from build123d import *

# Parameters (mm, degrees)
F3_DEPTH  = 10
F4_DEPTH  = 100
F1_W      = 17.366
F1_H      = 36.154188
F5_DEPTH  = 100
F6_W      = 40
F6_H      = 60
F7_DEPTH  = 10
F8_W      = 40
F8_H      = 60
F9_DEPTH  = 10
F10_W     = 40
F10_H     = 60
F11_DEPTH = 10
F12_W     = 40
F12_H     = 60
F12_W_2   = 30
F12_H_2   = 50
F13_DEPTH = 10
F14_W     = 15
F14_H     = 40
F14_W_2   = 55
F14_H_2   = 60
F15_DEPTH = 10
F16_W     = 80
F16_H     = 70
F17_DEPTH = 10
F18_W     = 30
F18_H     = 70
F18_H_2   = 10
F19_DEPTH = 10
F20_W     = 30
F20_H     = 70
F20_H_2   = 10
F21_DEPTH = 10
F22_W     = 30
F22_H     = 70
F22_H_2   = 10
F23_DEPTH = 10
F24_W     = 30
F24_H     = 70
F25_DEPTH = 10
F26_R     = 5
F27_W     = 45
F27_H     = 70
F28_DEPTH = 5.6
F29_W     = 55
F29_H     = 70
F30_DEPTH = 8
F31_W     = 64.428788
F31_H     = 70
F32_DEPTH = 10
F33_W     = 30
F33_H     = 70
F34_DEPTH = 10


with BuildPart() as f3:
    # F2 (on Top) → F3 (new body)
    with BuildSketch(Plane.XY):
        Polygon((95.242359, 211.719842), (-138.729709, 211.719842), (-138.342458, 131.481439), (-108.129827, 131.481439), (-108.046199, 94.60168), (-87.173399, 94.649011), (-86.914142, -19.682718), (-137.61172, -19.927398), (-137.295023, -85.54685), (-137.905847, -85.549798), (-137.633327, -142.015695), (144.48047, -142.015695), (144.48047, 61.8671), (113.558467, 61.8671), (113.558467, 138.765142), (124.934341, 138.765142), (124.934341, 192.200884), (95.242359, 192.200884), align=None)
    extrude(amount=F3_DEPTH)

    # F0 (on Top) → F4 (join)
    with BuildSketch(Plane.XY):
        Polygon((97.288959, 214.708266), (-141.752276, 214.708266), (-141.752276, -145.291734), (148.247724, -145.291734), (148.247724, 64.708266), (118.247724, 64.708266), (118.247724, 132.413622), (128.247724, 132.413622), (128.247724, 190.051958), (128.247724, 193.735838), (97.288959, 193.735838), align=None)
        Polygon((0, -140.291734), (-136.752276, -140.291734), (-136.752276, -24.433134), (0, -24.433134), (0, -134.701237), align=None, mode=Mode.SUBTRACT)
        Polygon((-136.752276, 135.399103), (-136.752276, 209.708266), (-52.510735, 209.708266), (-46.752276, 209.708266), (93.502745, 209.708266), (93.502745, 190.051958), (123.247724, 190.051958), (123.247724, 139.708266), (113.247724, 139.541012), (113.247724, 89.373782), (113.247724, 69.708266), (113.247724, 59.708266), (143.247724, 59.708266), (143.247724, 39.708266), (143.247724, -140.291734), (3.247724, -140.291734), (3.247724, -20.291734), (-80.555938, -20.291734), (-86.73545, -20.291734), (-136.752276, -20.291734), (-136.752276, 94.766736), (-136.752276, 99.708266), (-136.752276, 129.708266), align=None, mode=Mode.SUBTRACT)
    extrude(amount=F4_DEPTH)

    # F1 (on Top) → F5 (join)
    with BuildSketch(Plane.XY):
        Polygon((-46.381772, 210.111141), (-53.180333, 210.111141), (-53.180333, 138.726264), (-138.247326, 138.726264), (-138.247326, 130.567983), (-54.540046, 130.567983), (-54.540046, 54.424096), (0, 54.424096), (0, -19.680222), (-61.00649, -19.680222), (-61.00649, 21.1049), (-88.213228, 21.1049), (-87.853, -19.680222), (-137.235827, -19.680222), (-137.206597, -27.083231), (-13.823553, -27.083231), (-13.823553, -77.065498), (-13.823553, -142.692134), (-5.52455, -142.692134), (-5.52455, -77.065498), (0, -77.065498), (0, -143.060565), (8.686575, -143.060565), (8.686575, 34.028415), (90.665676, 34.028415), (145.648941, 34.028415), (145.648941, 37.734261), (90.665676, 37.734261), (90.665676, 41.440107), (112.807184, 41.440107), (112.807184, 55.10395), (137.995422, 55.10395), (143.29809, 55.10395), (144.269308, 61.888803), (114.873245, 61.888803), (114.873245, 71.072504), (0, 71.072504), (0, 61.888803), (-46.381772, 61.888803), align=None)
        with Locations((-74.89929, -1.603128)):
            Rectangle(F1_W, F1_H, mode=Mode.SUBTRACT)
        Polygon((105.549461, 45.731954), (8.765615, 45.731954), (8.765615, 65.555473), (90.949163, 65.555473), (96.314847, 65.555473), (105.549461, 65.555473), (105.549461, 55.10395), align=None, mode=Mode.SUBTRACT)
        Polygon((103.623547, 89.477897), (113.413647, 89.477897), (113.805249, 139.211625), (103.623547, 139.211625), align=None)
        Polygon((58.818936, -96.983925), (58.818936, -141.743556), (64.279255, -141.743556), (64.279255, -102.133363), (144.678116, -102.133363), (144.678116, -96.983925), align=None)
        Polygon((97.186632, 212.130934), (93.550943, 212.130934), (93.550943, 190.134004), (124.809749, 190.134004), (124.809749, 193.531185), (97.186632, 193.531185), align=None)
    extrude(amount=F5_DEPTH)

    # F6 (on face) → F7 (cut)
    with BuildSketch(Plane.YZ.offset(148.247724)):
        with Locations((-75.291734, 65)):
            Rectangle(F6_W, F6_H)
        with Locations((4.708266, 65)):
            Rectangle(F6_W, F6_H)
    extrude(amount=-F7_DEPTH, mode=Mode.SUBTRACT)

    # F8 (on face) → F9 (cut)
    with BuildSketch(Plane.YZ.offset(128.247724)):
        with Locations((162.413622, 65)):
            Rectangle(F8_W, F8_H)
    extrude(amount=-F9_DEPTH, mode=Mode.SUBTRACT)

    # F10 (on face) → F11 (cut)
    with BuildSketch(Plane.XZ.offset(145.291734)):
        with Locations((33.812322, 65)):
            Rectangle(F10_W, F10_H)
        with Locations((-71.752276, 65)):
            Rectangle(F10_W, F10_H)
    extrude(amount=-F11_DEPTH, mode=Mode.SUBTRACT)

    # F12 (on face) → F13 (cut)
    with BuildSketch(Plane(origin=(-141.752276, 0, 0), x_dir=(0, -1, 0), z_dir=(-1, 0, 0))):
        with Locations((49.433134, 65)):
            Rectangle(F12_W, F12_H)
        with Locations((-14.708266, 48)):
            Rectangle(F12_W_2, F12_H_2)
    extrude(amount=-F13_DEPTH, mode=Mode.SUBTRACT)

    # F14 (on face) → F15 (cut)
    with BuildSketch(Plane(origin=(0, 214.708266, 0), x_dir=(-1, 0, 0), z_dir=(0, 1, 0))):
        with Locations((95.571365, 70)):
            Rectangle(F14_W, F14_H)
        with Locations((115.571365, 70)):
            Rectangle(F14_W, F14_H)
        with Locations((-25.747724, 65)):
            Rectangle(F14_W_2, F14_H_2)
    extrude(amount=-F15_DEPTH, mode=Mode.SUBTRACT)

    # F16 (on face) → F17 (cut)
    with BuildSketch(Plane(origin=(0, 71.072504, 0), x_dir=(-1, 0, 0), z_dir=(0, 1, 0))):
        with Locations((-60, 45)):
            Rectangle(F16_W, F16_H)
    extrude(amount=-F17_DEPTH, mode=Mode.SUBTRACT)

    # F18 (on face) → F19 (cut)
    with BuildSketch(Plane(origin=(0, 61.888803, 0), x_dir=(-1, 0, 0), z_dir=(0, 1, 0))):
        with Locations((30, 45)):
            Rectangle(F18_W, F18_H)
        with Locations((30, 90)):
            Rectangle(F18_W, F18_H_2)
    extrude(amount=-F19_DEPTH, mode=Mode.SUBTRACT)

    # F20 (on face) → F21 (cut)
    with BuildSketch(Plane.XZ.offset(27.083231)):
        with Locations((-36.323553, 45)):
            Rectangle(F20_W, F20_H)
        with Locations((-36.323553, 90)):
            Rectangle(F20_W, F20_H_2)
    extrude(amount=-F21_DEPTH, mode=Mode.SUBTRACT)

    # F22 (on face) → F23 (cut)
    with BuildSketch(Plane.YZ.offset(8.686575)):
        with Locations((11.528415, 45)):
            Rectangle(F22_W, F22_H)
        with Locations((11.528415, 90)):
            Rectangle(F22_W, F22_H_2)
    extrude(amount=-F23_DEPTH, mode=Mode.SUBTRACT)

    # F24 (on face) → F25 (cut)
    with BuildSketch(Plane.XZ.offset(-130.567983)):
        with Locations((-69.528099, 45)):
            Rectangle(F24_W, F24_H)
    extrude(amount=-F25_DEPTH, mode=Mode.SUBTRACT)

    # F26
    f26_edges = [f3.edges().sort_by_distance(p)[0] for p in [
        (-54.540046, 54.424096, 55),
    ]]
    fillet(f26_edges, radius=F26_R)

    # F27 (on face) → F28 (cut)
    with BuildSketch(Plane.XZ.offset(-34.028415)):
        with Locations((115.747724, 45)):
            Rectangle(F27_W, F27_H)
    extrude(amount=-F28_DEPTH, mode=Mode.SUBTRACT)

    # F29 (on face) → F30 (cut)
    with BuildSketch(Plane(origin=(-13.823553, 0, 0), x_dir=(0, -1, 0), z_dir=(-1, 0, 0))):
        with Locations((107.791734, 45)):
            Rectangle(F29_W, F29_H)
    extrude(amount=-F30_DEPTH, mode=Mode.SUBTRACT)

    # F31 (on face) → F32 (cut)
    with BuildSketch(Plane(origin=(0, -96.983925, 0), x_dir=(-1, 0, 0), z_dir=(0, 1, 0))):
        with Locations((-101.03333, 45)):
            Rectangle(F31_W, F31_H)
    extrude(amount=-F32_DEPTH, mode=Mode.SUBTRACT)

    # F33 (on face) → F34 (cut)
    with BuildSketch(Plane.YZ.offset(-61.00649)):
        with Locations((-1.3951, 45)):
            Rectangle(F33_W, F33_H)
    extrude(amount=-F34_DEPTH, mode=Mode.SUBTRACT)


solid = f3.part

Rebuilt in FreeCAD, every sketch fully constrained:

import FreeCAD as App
import Part
import Sketcher
Q = App.Units.Quantity


def edges_at(feature, points):
    """Names of the edges that pass closest to the given points."""
    edges = feature.Shape.Edges
    near = lambda p: min(range(len(edges)), key=lambda i: edges[i].distToShape(Part.Vertex(*p))[0])
    return sorted({f"Edge{near(p) + 1}" for p in points})


def add_polygon(sketch, points):
    """Adds a closed chain of lines whose ends are joined by coincident constraints."""
    first, n = sketch.GeometryCount, len(points)
    for a, b in zip(points, points[1:] + points[:1]):
        sketch.addGeometry(Part.LineSegment(App.Vector(*a, 0), App.Vector(*b, 0)), False)
    for i in range(n):
        sketch.addConstraint(Sketcher.Constraint("Coincident", first + i, 2, first + (i + 1) % n, 1))

doc = App.newDocument("Part")
body = doc.addObject("PartDesign::Body", "Body")

sketch1 = body.newObject("Sketcher::SketchObject", "Sketch")
sketch1.AttachmentSupport = (doc.getObject("XY_Plane"), [""])
sketch1.MapMode = "FlatFace"
add_polygon(sketch1, [(95.2, 211.7), (-138.7, 211.7), (-138.3, 131.5), (-108.1, 131.5), (-108, 94.6), (-87.2, 94.6), (-86.9, -19.7), (-137.6, -19.9), (-137.3, -85.5), (-137.9, -85.5), (-137.6, -142), (144.5, -142), (144.5, 61.9), (113.6, 61.9), (113.6, 138.8), (124.9, 138.8), (124.9, 192.2), (95.2, 192.2)])
sketch1.addConstraint([
    Sketcher.Constraint("Horizontal", 0),
    Sketcher.Constraint("Horizontal", 2),
    Sketcher.Constraint("Horizontal", 10),
    Sketcher.Constraint("Vertical", 11),
    Sketcher.Constraint("Horizontal", 12),
    Sketcher.Constraint("Vertical", 13),
    Sketcher.Constraint("Horizontal", 14),
    Sketcher.Constraint("Vertical", 15),
    Sketcher.Constraint("Horizontal", 16),
    Sketcher.Constraint("Vertical", 17),
    Sketcher.Constraint("Perpendicular", 3, 4),
    Sketcher.Constraint("Perpendicular", 4, 5),
    Sketcher.Constraint("Perpendicular", 1, 6),
    Sketcher.Constraint("Perpendicular", 6, 7),
    Sketcher.Constraint("Perpendicular", 7, 8),
    Sketcher.Constraint("Perpendicular", 8, 9),
    Sketcher.Constraint("DistanceX", 0, 2, 0, 1, Q("233.972068 mm")),
    Sketcher.Constraint("DistanceX", 2, 1, 2, 2, Q("30.212631 mm")),
    Sketcher.Constraint("DistanceX", 3, 2, -1, 1, Q("108.046199 mm")),
    Sketcher.Constraint("DistanceX", 4, 2, -1, 1, Q("87.173399 mm")),
    Sketcher.Constraint("DistanceY", 6, 2, -1, 1, Q("19.927398 mm")),
    Sketcher.Constraint("DistanceY", -1, 1, 11, 2, Q("61.8671 mm")),
    Sketcher.Constraint("DistanceY", 5, 2, 3, 2, Q("114.284398 mm")),
    Sketcher.Constraint("DistanceY", 8, 2, 6, 2, Q("65.6224 mm")),
    Sketcher.Constraint("DistanceY", 13, 2, 17, 2, Q("72.9547 mm")),
    Sketcher.Constraint("Distance", 6, Q("50.698168 mm")),
    Sketcher.Constraint("Distance", 8, Q("0.610831 mm")),
    Sketcher.Constraint("DistanceX", 10, 1, 10, 2, Q("282.113797 mm")),
    Sketcher.Constraint("DistanceX", 12, 2, 12, 1, Q("30.922003 mm")),
    Sketcher.Constraint("DistanceX", 14, 1, 14, 2, Q("11.375874 mm")),
    Sketcher.Constraint("DistanceX", 16, 2, 16, 1, Q("29.691982 mm")),
    Sketcher.Constraint("DistanceY", 11, 1, 11, 2, Q("203.882795 mm")),
    Sketcher.Constraint("DistanceY", 13, 1, 13, 2, Q("76.898042 mm")),
    Sketcher.Constraint("DistanceY", 15, 1, 15, 2, Q("53.435742 mm")),
    Sketcher.Constraint("DistanceX", 0, 2, -1, 1, Q("138.729709 mm")),
    Sketcher.Constraint("DistanceY", -1, 1, 1, 2, Q("131.481439 mm")),
])
pad1 = body.newObject("PartDesign::Pad", "Pad")
pad1.Profile = sketch1
pad1.Length = 10

sketch2 = body.newObject("Sketcher::SketchObject", "Sketch001")
sketch2.AttachmentSupport = (doc.getObject("XY_Plane"), [""])
sketch2.MapMode = "FlatFace"
add_polygon(sketch2, [(97.288959, 214.708266), (-141.752276, 214.708266), (-141.752276, -145.291734), (148.247724, -145.291734), (148.247724, 64.708266), (118.247724, 64.708266), (118.247724, 132.413622), (128.247724, 132.413622), (128.247724, 193.735838), (97.288959, 193.735838)])
add_polygon(sketch2, [(0, -24.433134), (0, -140.291734), (-136.752276, -140.291734), (-136.752276, -24.433134)])
add_polygon(sketch2, [(-136.752276, -20.291734), (-136.752276, 209.708266), (93.502745, 209.708266), (93.502745, 190.051958), (123.247724, 190.051958), (123.247724, 139.708266), (113.247724, 139.541012), (113.247724, 59.708266), (143.247724, 59.708266), (143.247724, -140.291734), (3.247724, -140.291734), (3.247724, -20.291734)])
sketch2.addConstraint([
    Sketcher.Constraint("Horizontal", 0),
    Sketcher.Constraint("Vertical", 1),
    Sketcher.Constraint("Horizontal", 2),
    Sketcher.Constraint("Vertical", 3),
    Sketcher.Constraint("Horizontal", 4),
    Sketcher.Constraint("Vertical", 5),
    Sketcher.Constraint("Horizontal", 6),
    Sketcher.Constraint("Vertical", 7),
    Sketcher.Constraint("Horizontal", 8),
    Sketcher.Constraint("Vertical", 9),
    Sketcher.Constraint("Vertical", 10),
    Sketcher.Constraint("Horizontal", 11),
    Sketcher.Constraint("Vertical", 12),
    Sketcher.Constraint("Horizontal", 13),
    Sketcher.Constraint("Vertical", 14),
    Sketcher.Constraint("Horizontal", 15),
    Sketcher.Constraint("Vertical", 16),
    Sketcher.Constraint("Horizontal", 17),
    Sketcher.Constraint("Vertical", 18),
    Sketcher.Constraint("Vertical", 20),
    Sketcher.Constraint("Horizontal", 21),
    Sketcher.Constraint("Vertical", 22),
    Sketcher.Constraint("Horizontal", 23),
    Sketcher.Constraint("Vertical", 24),
    Sketcher.Constraint("Horizontal", 25),
    Sketcher.Constraint("PointOnObject", 10, 2, -2),
    Sketcher.Constraint("Horizontal", 11, 2, 22, 2),
    Sketcher.Constraint("Vertical", 12, 2, 14, 2),
    Sketcher.Constraint("Equal", 4, 21),
    Sketcher.Constraint("Equal", 23, 25),
    Sketcher.Constraint("DistanceX", 2, 1, 2, 2, Q("290 mm")),
    Sketcher.Constraint("DistanceX", 4, 2, 4, 1, Q("30 mm")),
    Sketcher.Constraint("DistanceX", 6, 1, 6, 2, Q("10 mm")),
    Sketcher.Constraint("DistanceX", 23, 2, 23, 1, Q("140 mm")),
    Sketcher.Constraint("DistanceY", 1, 2, 1, 1, Q("360 mm")),
    Sketcher.Constraint("DistanceY", 3, 1, 3, 2, Q("210 mm")),
    Sketcher.Constraint("DistanceY", 14, 1, 14, 2, Q("230 mm")),
    Sketcher.Constraint("DistanceY", 22, 2, 22, 1, Q("200 mm")),
    Sketcher.Constraint("DistanceY", 24, 1, 24, 2, Q("120 mm")),
    Sketcher.Constraint("DistanceY", 1, 2, 10, 2, Q("5 mm")),
    Sketcher.Constraint("DistanceX", 1, 2, 11, 2, Q("5 mm")),
    Sketcher.Constraint("DistanceX", 17, 2, 7, 2, Q("5 mm")),
    Sketcher.Constraint("DistanceY", 10, 2, 10, 1, Q("115.8586 mm")),
    Sketcher.Constraint("Distance", 19, Q("10.001399 mm")),
    Sketcher.Constraint("DistanceX", 15, 1, 15, 2, Q("230.255021 mm")),
    Sketcher.Constraint("DistanceY", 9, 1, 9, 2, Q("20.972428 mm")),
    Sketcher.Constraint("DistanceX", 0, 2, 0, 1, Q("239.041235 mm")),
    Sketcher.Constraint("DistanceX", 11, 2, 11, 1, Q("136.752276 mm")),
    Sketcher.Constraint("DistanceY", 5, 1, 5, 2, Q("67.705356 mm")),
    Sketcher.Constraint("DistanceY", 16, 2, 16, 1, Q("19.656308 mm")),
    Sketcher.Constraint("DistanceY", 18, 2, 18, 1, Q("50.343692 mm")),
    Sketcher.Constraint("DistanceY", -1, 1, 5, 2, Q("132.413622 mm")),
])
pad2 = body.newObject("PartDesign::Pad", "Pad001")
pad2.Profile = sketch2
pad2.Length = 100

sketch3 = body.newObject("Sketcher::SketchObject", "Sketch002")
sketch3.AttachmentSupport = (doc.getObject("XY_Plane"), [""])
sketch3.MapMode = "FlatFace"
add_polygon(sketch3, [(-46.4, 210.1), (-53.2, 210.1), (-53.2, 138.7), (-138.2, 138.7), (-138.2, 130.6), (-54.5, 130.6), (-54.5, 54.4), (0, 54.4), (0, -19.7), (-61, -19.7), (-61, 21.1), (-88.2, 21.1), (-87.9, -19.7), (-137.2, -19.7), (-137.2, -27.1), (-13.8, -27.1), (-13.8, -142.7), (-5.5, -142.7), (-5.5, -77.1), (0, -77.1), (0, -143.1), (8.7, -143.1), (8.7, 34), (145.6, 34), (145.6, 37.7), (90.7, 37.7), (90.7, 41.4), (112.8, 41.4), (112.8, 55.1), (143.3, 55.1), (144.3, 61.9), (114.9, 61.9), (114.9, 71.1), (0, 71.1), (0, 61.9), (-46.4, 61.9)])
add_polygon(sketch3, [(-66.2, -19.7), (-83.6, -19.7), (-83.6, 16.5), (-66.2, 16.5)])
add_polygon(sketch3, [(105.5, 65.6), (105.5, 45.7), (8.8, 45.7), (8.8, 65.6)])
add_polygon(sketch3, [(103.6, 89.5), (113.4, 89.5), (113.8, 139.2), (103.6, 139.2)])
add_polygon(sketch3, [(58.8, -97), (58.8, -141.7), (64.3, -141.7), (64.3, -102.1), (144.7, -102.1), (144.7, -97)])
add_polygon(sketch3, [(97.2, 212.1), (93.6, 212.1), (93.6, 190.1), (124.8, 190.1), (124.8, 193.5), (97.2, 193.5)])
sketch3.addConstraint([
    Sketcher.Constraint("Horizontal", 0),
    Sketcher.Constraint("Vertical", 1),
    Sketcher.Constraint("Horizontal", 2),
    Sketcher.Constraint("Vertical", 3),
    Sketcher.Constraint("Horizontal", 4),
    Sketcher.Constraint("Vertical", 5),
    Sketcher.Constraint("Horizontal", 6),
    Sketcher.Constraint("Vertical", 7),
    Sketcher.Constraint("Horizontal", 8),
    Sketcher.Constraint("Vertical", 9),
    Sketcher.Constraint("Horizontal", 10),
    Sketcher.Constraint("Horizontal", 12),
    Sketcher.Constraint("Horizontal", 14),
    Sketcher.Constraint("Vertical", 15),
    Sketcher.Constraint("Horizontal", 16),
    Sketcher.Constraint("Vertical", 17),
    Sketcher.Constraint("Horizontal", 18),
    Sketcher.Constraint("Vertical", 19),
    Sketcher.Constraint("Horizontal", 20),
    Sketcher.Constraint("Vertical", 21),
    Sketcher.Constraint("Horizontal", 22),
    Sketcher.Constraint("Vertical", 23),
    Sketcher.Constraint("Horizontal", 24),
    Sketcher.Constraint("Vertical", 25),
    Sketcher.Constraint("Horizontal", 26),
    Sketcher.Constraint("Vertical", 27),
    Sketcher.Constraint("Horizontal", 28),
    Sketcher.Constraint("Horizontal", 30),
    Sketcher.Constraint("Vertical", 31),
    Sketcher.Constraint("Horizontal", 32),
    Sketcher.Constraint("Vertical", 33),
    Sketcher.Constraint("Horizontal", 34),
    Sketcher.Constraint("Vertical", 35),
    Sketcher.Constraint("Horizontal", 36),
    Sketcher.Constraint("Vertical", 37),
    Sketcher.Constraint("Horizontal", 38),
    Sketcher.Constraint("Vertical", 39),
    Sketcher.Constraint("Vertical", 40),
    Sketcher.Constraint("Horizontal", 41),
    Sketcher.Constraint("Vertical", 42),
    Sketcher.Constraint("Horizontal", 43),
    Sketcher.Constraint("Horizontal", 44),
    Sketcher.Constraint("Horizontal", 46),
    Sketcher.Constraint("Vertical", 47),
    Sketcher.Constraint("Vertical", 48),
    Sketcher.Constraint("Horizontal", 49),
    Sketcher.Constraint("Vertical", 50),
    Sketcher.Constraint("Horizontal", 51),
    Sketcher.Constraint("Vertical", 52),
    Sketcher.Constraint("Horizontal", 53),
    Sketcher.Constraint("Horizontal", 54),
    Sketcher.Constraint("Vertical", 55),
    Sketcher.Constraint("Horizontal", 56),
    Sketcher.Constraint("Vertical", 57),
    Sketcher.Constraint("Horizontal", 58),
    Sketcher.Constraint("Vertical", 59),
    Sketcher.Constraint("PointOnObject", 6, 2, -2),
    Sketcher.Constraint("PointOnObject", 18, 2, -2),
    Sketcher.Constraint("PointOnObject", 32, 2, -2),
    Sketcher.Constraint("Horizontal", 8, 2, 11, 2),
    Sketcher.Constraint("Horizontal", 30, 2, 33, 2),
    Sketcher.Constraint("Horizontal", 12, 2, 36, 2),
    Sketcher.Constraint("Equal", 23, 25),
    Sketcher.Constraint("DistanceX", 36, 2, 36, 1, Q("17.366 mm")),
    Sketcher.Constraint("DistanceX", 44, 1, 44, 2, Q("9.7901 mm")),
    Sketcher.Constraint("DistanceY", 31, 1, 31, 2, Q("9.183701 mm")),
    Sketcher.Constraint("DistanceX", 11, 2, -1, 1, Q("87.853 mm")),
    Sketcher.Constraint("DistanceX", 0, 2, 0, 1, Q("6.798561 mm")),
    Sketcher.Constraint("DistanceX", 4, 1, 4, 2, Q("83.70728 mm")),
    Sketcher.Constraint("DistanceX", 8, 2, 8, 1, Q("61.00649 mm")),
    Sketcher.Constraint("DistanceX", 10, 2, 10, 1, Q("27.206738 mm")),
    Sketcher.Constraint("DistanceX", 18, 1, 18, 2, Q("5.52455 mm")),
    Sketcher.Constraint("DistanceX", 26, 1, 26, 2, Q("22.141508 mm")),
    Sketcher.Constraint("DistanceX", 34, 2, 34, 1, Q("46.381772 mm")),
    Sketcher.Constraint("DistanceX", 49, 1, 49, 2, Q("5.460319 mm")),
    Sketcher.Constraint("DistanceX", 51, 1, 51, 2, Q("80.398861 mm")),
    Sketcher.Constraint("DistanceX", 54, 2, 54, 1, Q("3.635689 mm")),
    Sketcher.Constraint("DistanceY", 3, 2, 3, 1, Q("8.158281 mm")),
    Sketcher.Constraint("DistanceY", 7, 2, 7, 1, Q("74.104318 mm")),
    Sketcher.Constraint("DistanceY", 21, 1, 21, 2, Q("177.08898 mm")),
    Sketcher.Constraint("DistanceY", 35, 1, 35, 2, Q("148.222338 mm")),
    Sketcher.Constraint("DistanceY", 37, 1, 37, 2, Q("36.154188 mm")),
    Sketcher.Constraint("DistanceY", 40, 2, 40, 1, Q("19.823519 mm")),
    Sketcher.Constraint("DistanceY", 48, 2, 48, 1, Q("44.759631 mm")),
    Sketcher.Constraint("DistanceY", 52, 1, 52, 2, Q("5.149438 mm")),
    Sketcher.Constraint("DistanceY", 55, 2, 55, 1, Q("21.99693 mm")),
    Sketcher.Constraint("DistanceY", 57, 1, 57, 2, Q("3.397181 mm")),
    Sketcher.Constraint("DistanceY", -1, 1, 9, 2, Q("21.1049 mm")),
    Sketcher.Constraint("DistanceY", 17, 2, -1, 1, Q("77.065498 mm")),
    Sketcher.Constraint("DistanceX", 12, 2, 10, 2, Q("49.022599 mm")),
    Sketcher.Constraint("DistanceX", 21, 2, 24, 2, Q("81.979101 mm")),
    Sketcher.Constraint("DistanceX", 36, 2, 8, 2, Q("22.5758 mm")),
    Sketcher.Constraint("DistanceY", 20, 2, 50, 2, Q("40.927202 mm")),
    Sketcher.Constraint("DistanceX", 45, 2, 56, 2, Q("11.0045 mm")),
    Sketcher.Constraint("DistanceX", 46, 2, 56, 2, Q("21.186202 mm")),
    Sketcher.Constraint("Distance", 45, Q("49.73527 mm")),
    Sketcher.Constraint("DistanceX", 2, 2, 2, 1, Q("85.066993 mm")),
    Sketcher.Constraint("DistanceX", 14, 1, 14, 2, Q("123.383044 mm")),
    Sketcher.Constraint("DistanceX", 16, 1, 16, 2, Q("8.299003 mm")),
    Sketcher.Constraint("DistanceX", 20, 1, 20, 2, Q("8.686575 mm")),
    Sketcher.Constraint("DistanceX", 22, 1, 22, 2, Q("136.962366 mm")),
    Sketcher.Constraint("DistanceX", 28, 1, 28, 2, Q("30.490906 mm")),
    Sketcher.Constraint("DistanceX", 30, 2, 30, 1, Q("29.396063 mm")),
    Sketcher.Constraint("DistanceX", 32, 2, 32, 1, Q("114.873245 mm")),
    Sketcher.Constraint("DistanceX", 41, 2, 41, 1, Q("96.783846 mm")),
    Sketcher.Constraint("DistanceX", 56, 1, 56, 2, Q("31.258806 mm")),
    Sketcher.Constraint("DistanceY", 1, 2, 1, 1, Q("71.384877 mm")),
    Sketcher.Constraint("DistanceY", 5, 2, 5, 1, Q("76.143887 mm")),
    Sketcher.Constraint("DistanceY", 9, 1, 9, 2, Q("40.785122 mm")),
    Sketcher.Constraint("DistanceY", 15, 2, 15, 1, Q("115.608903 mm")),
    Sketcher.Constraint("DistanceY", 17, 1, 17, 2, Q("65.626636 mm")),
    Sketcher.Constraint("DistanceY", 19, 2, 19, 1, Q("65.995067 mm")),
    Sketcher.Constraint("DistanceY", 23, 1, 23, 2, Q("3.705846 mm")),
    Sketcher.Constraint("DistanceY", 27, 1, 27, 2, Q("13.663843 mm")),
    Sketcher.Constraint("DistanceX", -1, 1, 40, 2, Q("105.549461 mm")),
    Sketcher.Constraint("DistanceX", -1, 1, 45, 2, Q("113.805249 mm")),
    Sketcher.Constraint("DistanceY", 40, 2, 30, 2, Q("16.156849 mm")),
    Sketcher.Constraint("DistanceY", 31, 2, 45, 2, Q("68.139121 mm")),
    Sketcher.Constraint("DistanceX", 20, 2, 48, 2, Q("50.132361 mm")),
    Sketcher.Constraint("DistanceY", 46, 2, 54, 2, Q("72.919309 mm")),
])
pad3 = body.newObject("PartDesign::Pad", "Pad002")
pad3.Profile = sketch3
pad3.Length = 100

sketch4 = body.newObject("Sketcher::SketchObject", "Sketch003")
sketch4.AttachmentSupport = (doc.getObject("YZ_Plane"), [""])
sketch4.MapMode = "FlatFace"
sketch4.AttachmentOffset = App.Placement(App.Vector(0, 0, 148.247724), App.Rotation())
add_polygon(sketch4, [(-95, 95), (-95, 35), (-55, 35), (-55, 95)])
add_polygon(sketch4, [(-15, 95), (-15, 35), (25, 35), (25, 95)])
sketch4.addConstraint([
    Sketcher.Constraint("Vertical", 0),
    Sketcher.Constraint("Horizontal", 1),
    Sketcher.Constraint("Vertical", 2),
    Sketcher.Constraint("Horizontal", 3),
    Sketcher.Constraint("Vertical", 4),
    Sketcher.Constraint("Horizontal", 5),
    Sketcher.Constraint("Vertical", 6),
    Sketcher.Constraint("Horizontal", 7),
    Sketcher.Constraint("Horizontal", 1, 2, 4, 2),
    Sketcher.Constraint("Horizontal", 3, 2, 6, 2),
    Sketcher.Constraint("Equal", 3, 5),
    Sketcher.Constraint("DistanceX", 1, 1, 1, 2, Q("40 mm")),
    Sketcher.Constraint("DistanceY", 0, 2, 0, 1, Q("60 mm")),
    Sketcher.Constraint("DistanceY", -1, 1, 0, 2, Q("35 mm")),
    Sketcher.Constraint("DistanceX", 1, 2, 4, 2, Q("40 mm")),
    Sketcher.Constraint("DistanceX", 0, 2, -1, 1, Q("95.291734 mm")),
])
pocket1 = body.newObject("PartDesign::Pocket", "Pocket")
pocket1.Profile = sketch4
pocket1.Length = 10

sketch5 = body.newObject("Sketcher::SketchObject", "Sketch004")
sketch5.AttachmentSupport = (doc.getObject("YZ_Plane"), [""])
sketch5.MapMode = "FlatFace"
sketch5.AttachmentOffset = App.Placement(App.Vector(0, 0, 128.247724), App.Rotation())
add_polygon(sketch5, [(142, 95), (142, 35), (182, 35), (182, 95)])
sketch5.addConstraint([
    Sketcher.Constraint("Vertical", 0),
    Sketcher.Constraint("Horizontal", 1),
    Sketcher.Constraint("Vertical", 2),
    Sketcher.Constraint("Horizontal", 3),
    Sketcher.Constraint("DistanceX", 1, 1, 1, 2, Q("40 mm")),
    Sketcher.Constraint("DistanceY", 0, 2, 0, 1, Q("60 mm")),
    Sketcher.Constraint("DistanceY", -1, 1, 0, 2, Q("35 mm")),
    Sketcher.Constraint("DistanceX", -1, 1, 0, 2, Q("142.413622 mm")),
])
pocket2 = body.newObject("PartDesign::Pocket", "Pocket001")
pocket2.Profile = sketch5
pocket2.Length = 10

sketch6 = body.newObject("Sketcher::SketchObject", "Sketch005")
sketch6.AttachmentSupport = (doc.getObject("XZ_Plane"), [""])
sketch6.MapMode = "FlatFace"
sketch6.AttachmentOffset = App.Placement(App.Vector(0, 0, 145.291734), App.Rotation())
add_polygon(sketch6, [(14, 95), (14, 35), (54, 35), (54, 95)])
add_polygon(sketch6, [(-92, 95), (-92, 35), (-52, 35), (-52, 95)])
sketch6.addConstraint([
    Sketcher.Constraint("Vertical", 0),
    Sketcher.Constraint("Horizontal", 1),
    Sketcher.Constraint("Vertical", 2),
    Sketcher.Constraint("Horizontal", 3),
    Sketcher.Constraint("Vertical", 4),
    Sketcher.Constraint("Horizontal", 5),
    Sketcher.Constraint("Vertical", 6),
    Sketcher.Constraint("Horizontal", 7),
    Sketcher.Constraint("Horizontal", 1, 2, 4, 2),
    Sketcher.Constraint("Horizontal", 3, 2, 6, 2),
    Sketcher.Constraint("Equal", 3, 5),
    Sketcher.Constraint("DistanceX", 1, 1, 1, 2, Q("40 mm")),
    Sketcher.Constraint("DistanceY", 0, 2, 0, 1, Q("60 mm")),
    Sketcher.Constraint("DistanceY", -1, 1, 0, 2, Q("35 mm")),
    Sketcher.Constraint("DistanceX", 5, 2, 0, 2, Q("65.564598 mm")),
    Sketcher.Constraint("DistanceX", -1, 1, 0, 2, Q("13.812322 mm")),
])
pocket3 = body.newObject("PartDesign::Pocket", "Pocket002")
pocket3.Profile = sketch6
pocket3.Length = 10

sketch7 = body.newObject("Sketcher::SketchObject", "Sketch006")
sketch7.AttachmentSupport = (doc.getObject("YZ_Plane"), [""])
sketch7.MapMode = "FlatFace"
sketch7.AttachmentOffset = App.Placement(App.Vector(0, 0, -141.752276), App.Rotation())
add_polygon(sketch7, [(-29, 95), (-29, 35), (-69, 35), (-69, 95)])
add_polygon(sketch7, [(30, 73), (30, 23), (0, 23), (0, 73)])
sketch7.addConstraint([
    Sketcher.Constraint("Vertical", 0),
    Sketcher.Constraint("Horizontal", 1),
    Sketcher.Constraint("Vertical", 2),
    Sketcher.Constraint("Horizontal", 3),
    Sketcher.Constraint("Vertical", 4),
    Sketcher.Constraint("Horizontal", 5),
    Sketcher.Constraint("Vertical", 6),
    Sketcher.Constraint("Horizontal", 7),
    Sketcher.Constraint("DistanceX", 1, 2, 1, 1, Q("40 mm")),
    Sketcher.Constraint("DistanceX", 5, 2, 5, 1, Q("30 mm")),
    Sketcher.Constraint("DistanceY", 0, 2, 0, 1, Q("60 mm")),
    Sketcher.Constraint("DistanceY", 4, 2, 4, 1, Q("50 mm")),
    Sketcher.Constraint("DistanceY", -1, 1, 0, 2, Q("35 mm")),
    Sketcher.Constraint("DistanceY", -1, 1, 4, 2, Q("23 mm")),
    Sketcher.Constraint("DistanceX", 0, 2, 4, 2, Q("59.1414 mm")),
    Sketcher.Constraint("DistanceX", 0, 2, -1, 1, Q("29.433134 mm")),
])
pocket4 = body.newObject("PartDesign::Pocket", "Pocket003")
pocket4.Profile = sketch7
pocket4.Length = 10
pocket4.Reversed = True

sketch8 = body.newObject("Sketcher::SketchObject", "Sketch007")
sketch8.AttachmentSupport = (doc.getObject("XZ_Plane"), [""])
sketch8.MapMode = "FlatFace"
sketch8.AttachmentOffset = App.Placement(App.Vector(0, 0, -214.708266), App.Rotation())
add_polygon(sketch8, [(-88, 90), (-88, 50), (-103, 50), (-103, 90)])
add_polygon(sketch8, [(-108, 90), (-108, 50), (-123, 50), (-123, 90)])
add_polygon(sketch8, [(53, 95), (53, 35), (-2, 35), (-2, 95)])
sketch8.addConstraint([
    Sketcher.Constraint("Vertical", 0),
    Sketcher.Constraint("Horizontal", 1),
    Sketcher.Constraint("Vertical", 2),
    Sketcher.Constraint("Horizontal", 3),
    Sketcher.Constraint("Vertical", 4),
    Sketcher.Constraint("Horizontal", 5),
    Sketcher.Constraint("Vertical", 6),
    Sketcher.Constraint("Horizontal", 7),
    Sketcher.Constraint("Vertical", 8),
    Sketcher.Constraint("Horizontal", 9),
    Sketcher.Constraint("Vertical", 10),
    Sketcher.Constraint("Horizontal", 11),
    Sketcher.Constraint("Horizontal", 1, 2, 4, 2),
    Sketcher.Constraint("Horizontal", 3, 2, 6, 2),
    Sketcher.Constraint("Equal", 3, 5),
    Sketcher.Constraint("DistanceX", 1, 2, 1, 1, Q("15 mm")),
    Sketcher.Constraint("DistanceX", 9, 2, 9, 1, Q("55 mm")),
    Sketcher.Constraint("DistanceY", 0, 2, 0, 1, Q("40 mm")),
    Sketcher.Constraint("DistanceY", 8, 2, 8, 1, Q("60 mm")),
    Sketcher.Constraint("DistanceY", -1, 1, 0, 2, Q("50 mm")),
    Sketcher.Constraint("DistanceY", -1, 1, 8, 2, Q("35 mm")),
    Sketcher.Constraint("DistanceX", 4, 2, 1, 2, Q("5 mm")),
    Sketcher.Constraint("DistanceX", 0, 2, 8, 2, Q("141.319089 mm")),
    Sketcher.Constraint("DistanceX", 0, 2, -1, 1, Q("88.071365 mm")),
])
pocket5 = body.newObject("PartDesign::Pocket", "Pocket004")
pocket5.Profile = sketch8
pocket5.Length = 10
pocket5.Reversed = True

sketch9 = body.newObject("Sketcher::SketchObject", "Sketch008")
sketch9.AttachmentSupport = (doc.getObject("XZ_Plane"), [""])
sketch9.MapMode = "FlatFace"
sketch9.AttachmentOffset = App.Placement(App.Vector(0, 0, -71.072504), App.Rotation())
add_polygon(sketch9, [(100, 80), (100, 10), (20, 10), (20, 80)])
sketch9.addConstraint([
    Sketcher.Constraint("Vertical", 0),
    Sketcher.Constraint("Horizontal", 1),
    Sketcher.Constraint("Vertical", 2),
    Sketcher.Constraint("Horizontal", 3),
    Sketcher.Constraint("DistanceX", 1, 2, 1, 1, Q("80 mm")),
    Sketcher.Constraint("DistanceY", 0, 2, 0, 1, Q("70 mm")),
    Sketcher.Constraint("DistanceX", -1, 1, 0, 2, Q("100 mm")),
    Sketcher.Constraint("DistanceY", -1, 1, 0, 2, Q("10 mm")),
])
pocket6 = body.newObject("PartDesign::Pocket", "Pocket005")
pocket6.Profile = sketch9
pocket6.Length = 10
pocket6.Reversed = True

sketch10 = body.newObject("Sketcher::SketchObject", "Sketch009")
sketch10.AttachmentSupport = (doc.getObject("XZ_Plane"), [""])
sketch10.MapMode = "FlatFace"
sketch10.AttachmentOffset = App.Placement(App.Vector(0, 0, -61.888803), App.Rotation())
add_polygon(sketch10, [(-15, 80), (-15, 10), (-45, 10), (-45, 80)])
add_polygon(sketch10, [(-15, 95), (-15, 85), (-45, 85), (-45, 95)])
sketch10.addConstraint([
    Sketcher.Constraint("Vertical", 0),
    Sketcher.Constraint("Horizontal", 1),
    Sketcher.Constraint("Vertical", 2),
    Sketcher.Constraint("Horizontal", 3),
    Sketcher.Constraint("Vertical", 4),
    Sketcher.Constraint("Horizontal", 5),
    Sketcher.Constraint("Vertical", 6),
    Sketcher.Constraint("Horizontal", 7),
    Sketcher.Constraint("Vertical", 3, 2, 4, 2),
    Sketcher.Constraint("Vertical", 2, 2, 5, 2),
    Sketcher.Constraint("DistanceX", 1, 2, 1, 1, Q("30 mm")),
    Sketcher.Constraint("DistanceY", 0, 2, 0, 1, Q("70 mm")),
    Sketcher.Constraint("DistanceY", 4, 2, 4, 1, Q("10 mm")),
    Sketcher.Constraint("DistanceX", 0, 2, -1, 1, Q("15 mm")),
    Sketcher.Constraint("DistanceY", -1, 1, 0, 2, Q("10 mm")),
    Sketcher.Constraint("DistanceY", -1, 1, 4, 2, Q("85 mm")),
])
pocket7 = body.newObject("PartDesign::Pocket", "Pocket006")
pocket7.Profile = sketch10
pocket7.Length = 10
pocket7.Reversed = True

sketch11 = body.newObject("Sketcher::SketchObject", "Sketch010")
sketch11.AttachmentSupport = (doc.getObject("XZ_Plane"), [""])
sketch11.MapMode = "FlatFace"
sketch11.AttachmentOffset = App.Placement(App.Vector(0, 0, 27.083231), App.Rotation())
add_polygon(sketch11, [(-51, 80), (-51, 10), (-21, 10), (-21, 80)])
add_polygon(sketch11, [(-51, 95), (-51, 85), (-21, 85), (-21, 95)])
sketch11.addConstraint([
    Sketcher.Constraint("Vertical", 0),
    Sketcher.Constraint("Horizontal", 1),
    Sketcher.Constraint("Vertical", 2),
    Sketcher.Constraint("Horizontal", 3),
    Sketcher.Constraint("Vertical", 4),
    Sketcher.Constraint("Horizontal", 5),
    Sketcher.Constraint("Vertical", 6),
    Sketcher.Constraint("Horizontal", 7),
    Sketcher.Constraint("Vertical", 3, 2, 4, 2),
    Sketcher.Constraint("Vertical", 2, 2, 5, 2),
    Sketcher.Constraint("DistanceX", 1, 1, 1, 2, Q("30 mm")),
    Sketcher.Constraint("DistanceY", 0, 2, 0, 1, Q("70 mm")),
    Sketcher.Constraint("DistanceY", 4, 2, 4, 1, Q("10 mm")),
    Sketcher.Constraint("DistanceY", -1, 1, 0, 2, Q("10 mm")),
    Sketcher.Constraint("DistanceY", -1, 1, 4, 2, Q("85 mm")),
    Sketcher.Constraint("DistanceX", 0, 2, -1, 1, Q("51.323553 mm")),
])
pocket8 = body.newObject("PartDesign::Pocket", "Pocket007")
pocket8.Profile = sketch11
pocket8.Length = 10

sketch12 = body.newObject("Sketcher::SketchObject", "Sketch011")
sketch12.AttachmentSupport = (doc.getObject("YZ_Plane"), [""])
sketch12.MapMode = "FlatFace"
sketch12.AttachmentOffset = App.Placement(App.Vector(0, 0, 8.686575), App.Rotation())
add_polygon(sketch12, [(-3, 80), (-3, 10), (27, 10), (27, 80)])
add_polygon(sketch12, [(-3, 95), (-3, 85), (27, 85), (27, 95)])
sketch12.addConstraint([
    Sketcher.Constraint("Vertical", 0),
    Sketcher.Constraint("Horizontal", 1),
    Sketcher.Constraint("Vertical", 2),
    Sketcher.Constraint("Horizontal", 3),
    Sketcher.Constraint("Vertical", 4),
    Sketcher.Constraint("Horizontal", 5),
    Sketcher.Constraint("Vertical", 6),
    Sketcher.Constraint("Horizontal", 7),
    Sketcher.Constraint("Vertical", 3, 2, 4, 2),
    Sketcher.Constraint("Vertical", 2, 2, 5, 2),
    Sketcher.Constraint("DistanceX", 1, 1, 1, 2, Q("30 mm")),
    Sketcher.Constraint("DistanceY", 0, 2, 0, 1, Q("70 mm")),
    Sketcher.Constraint("DistanceY", 4, 2, 4, 1, Q("10 mm")),
    Sketcher.Constraint("DistanceY", -1, 1, 0, 2, Q("10 mm")),
    Sketcher.Constraint("DistanceY", -1, 1, 4, 2, Q("85 mm")),
    Sketcher.Constraint("DistanceX", 0, 2, -1, 1, Q("3.471585 mm")),
])
pocket9 = body.newObject("PartDesign::Pocket", "Pocket008")
pocket9.Profile = sketch12
pocket9.Length = 10

sketch13 = body.newObject("Sketcher::SketchObject", "Sketch012")
sketch13.AttachmentSupport = (doc.getObject("XZ_Plane"), [""])
sketch13.MapMode = "FlatFace"
sketch13.AttachmentOffset = App.Placement(App.Vector(0, 0, -130.567983), App.Rotation())
add_polygon(sketch13, [(-85, 80), (-85, 10), (-55, 10), (-55, 80)])
sketch13.addConstraint([
    Sketcher.Constraint("Vertical", 0),
    Sketcher.Constraint("Horizontal", 1),
    Sketcher.Constraint("Vertical", 2),
    Sketcher.Constraint("Horizontal", 3),
    Sketcher.Constraint("DistanceX", 1, 1, 1, 2, Q("30 mm")),
    Sketcher.Constraint("DistanceY", 0, 2, 0, 1, Q("70 mm")),
    Sketcher.Constraint("DistanceY", -1, 1, 0, 2, Q("10 mm")),
    Sketcher.Constraint("DistanceX", 0, 2, -1, 1, Q("84.528099 mm")),
])
pocket10 = body.newObject("PartDesign::Pocket", "Pocket009")
pocket10.Profile = sketch13
pocket10.Length = 10
doc.recompute()

fillet = body.newObject("PartDesign::Fillet", "Fillet")
fillet.Base = (pocket10, edges_at(pocket10, [(-54.54, 54.424, 55)]))
fillet.Radius = 5

sketch14 = body.newObject("Sketcher::SketchObject", "Sketch013")
sketch14.AttachmentSupport = (doc.getObject("XZ_Plane"), [""])
sketch14.MapMode = "FlatFace"
sketch14.AttachmentOffset = App.Placement(App.Vector(0, 0, -34.028415), App.Rotation())
add_polygon(sketch14, [(93, 80), (93, 10), (138, 10), (138, 80)])
sketch14.addConstraint([
    Sketcher.Constraint("Vertical", 0),
    Sketcher.Constraint("Horizontal", 1),
    Sketcher.Constraint("Vertical", 2),
    Sketcher.Constraint("Horizontal", 3),
    Sketcher.Constraint("DistanceX", 1, 1, 1, 2, Q("45 mm")),
    Sketcher.Constraint("DistanceY", 0, 2, 0, 1, Q("70 mm")),
    Sketcher.Constraint("DistanceY", -1, 1, 0, 2, Q("10 mm")),
    Sketcher.Constraint("DistanceX", -1, 1, 0, 2, Q("93.247724 mm")),
])
pocket11 = body.newObject("PartDesign::Pocket", "Pocket010")
pocket11.Profile = sketch14
pocket11.Length = 5.6

sketch15 = body.newObject("Sketcher::SketchObject", "Sketch014")
sketch15.AttachmentSupport = (doc.getObject("YZ_Plane"), [""])
sketch15.MapMode = "FlatFace"
sketch15.AttachmentOffset = App.Placement(App.Vector(0, 0, -13.823553), App.Rotation())
add_polygon(sketch15, [(-80, 80), (-80, 10), (-135, 10), (-135, 80)])
sketch15.addConstraint([
    Sketcher.Constraint("Vertical", 0),
    Sketcher.Constraint("Horizontal", 1),
    Sketcher.Constraint("Vertical", 2),
    Sketcher.Constraint("Horizontal", 3),
    Sketcher.Constraint("DistanceX", 1, 2, 1, 1, Q("55 mm")),
    Sketcher.Constraint("DistanceY", 0, 2, 0, 1, Q("70 mm")),
    Sketcher.Constraint("DistanceY", -1, 1, 0, 2, Q("10 mm")),
    Sketcher.Constraint("DistanceX", 0, 2, -1, 1, Q("80.291734 mm")),
])
pocket12 = body.newObject("PartDesign::Pocket", "Pocket011")
pocket12.Profile = sketch15
pocket12.Length = 8
pocket12.Reversed = True

sketch16 = body.newObject("Sketcher::SketchObject", "Sketch015")
sketch16.AttachmentSupport = (doc.getObject("XZ_Plane"), [""])
sketch16.MapMode = "FlatFace"
sketch16.AttachmentOffset = App.Placement(App.Vector(0, 0, 96.983925), App.Rotation())
add_polygon(sketch16, [(133, 80), (133, 10), (69, 10), (69, 80)])
sketch16.addConstraint([
    Sketcher.Constraint("Vertical", 0),
    Sketcher.Constraint("Horizontal", 1),
    Sketcher.Constraint("Vertical", 2),
    Sketcher.Constraint("Horizontal", 3),
    Sketcher.Constraint("DistanceY", 0, 2, 0, 1, Q("70 mm")),
    Sketcher.Constraint("DistanceY", -1, 1, 0, 2, Q("10 mm")),
    Sketcher.Constraint("DistanceX", 1, 2, 1, 1, Q("64.428788 mm")),
    Sketcher.Constraint("DistanceX", -1, 1, 0, 2, Q("133.247724 mm")),
])
pocket13 = body.newObject("PartDesign::Pocket", "Pocket012")
pocket13.Profile = sketch16
pocket13.Length = 10
pocket13.Reversed = True

sketch17 = body.newObject("Sketcher::SketchObject", "Sketch016")
sketch17.AttachmentSupport = (doc.getObject("YZ_Plane"), [""])
sketch17.MapMode = "FlatFace"
sketch17.AttachmentOffset = App.Placement(App.Vector(0, 0, -61.00649), App.Rotation())
add_polygon(sketch17, [(-16, 80), (-16, 10), (14, 10), (14, 80)])
sketch17.addConstraint([
    Sketcher.Constraint("Vertical", 0),
    Sketcher.Constraint("Horizontal", 1),
    Sketcher.Constraint("Vertical", 2),
    Sketcher.Constraint("Horizontal", 3),
    Sketcher.Constraint("DistanceX", 1, 1, 1, 2, Q("30 mm")),
    Sketcher.Constraint("DistanceY", 0, 2, 0, 1, Q("70 mm")),
    Sketcher.Constraint("DistanceY", -1, 1, 0, 2, Q("10 mm")),
    Sketcher.Constraint("DistanceX", 0, 2, -1, 1, Q("16.3951 mm")),
])
pocket14 = body.newObject("PartDesign::Pocket", "Pocket013")
pocket14.Profile = sketch17
pocket14.Length = 10

doc.recompute()
